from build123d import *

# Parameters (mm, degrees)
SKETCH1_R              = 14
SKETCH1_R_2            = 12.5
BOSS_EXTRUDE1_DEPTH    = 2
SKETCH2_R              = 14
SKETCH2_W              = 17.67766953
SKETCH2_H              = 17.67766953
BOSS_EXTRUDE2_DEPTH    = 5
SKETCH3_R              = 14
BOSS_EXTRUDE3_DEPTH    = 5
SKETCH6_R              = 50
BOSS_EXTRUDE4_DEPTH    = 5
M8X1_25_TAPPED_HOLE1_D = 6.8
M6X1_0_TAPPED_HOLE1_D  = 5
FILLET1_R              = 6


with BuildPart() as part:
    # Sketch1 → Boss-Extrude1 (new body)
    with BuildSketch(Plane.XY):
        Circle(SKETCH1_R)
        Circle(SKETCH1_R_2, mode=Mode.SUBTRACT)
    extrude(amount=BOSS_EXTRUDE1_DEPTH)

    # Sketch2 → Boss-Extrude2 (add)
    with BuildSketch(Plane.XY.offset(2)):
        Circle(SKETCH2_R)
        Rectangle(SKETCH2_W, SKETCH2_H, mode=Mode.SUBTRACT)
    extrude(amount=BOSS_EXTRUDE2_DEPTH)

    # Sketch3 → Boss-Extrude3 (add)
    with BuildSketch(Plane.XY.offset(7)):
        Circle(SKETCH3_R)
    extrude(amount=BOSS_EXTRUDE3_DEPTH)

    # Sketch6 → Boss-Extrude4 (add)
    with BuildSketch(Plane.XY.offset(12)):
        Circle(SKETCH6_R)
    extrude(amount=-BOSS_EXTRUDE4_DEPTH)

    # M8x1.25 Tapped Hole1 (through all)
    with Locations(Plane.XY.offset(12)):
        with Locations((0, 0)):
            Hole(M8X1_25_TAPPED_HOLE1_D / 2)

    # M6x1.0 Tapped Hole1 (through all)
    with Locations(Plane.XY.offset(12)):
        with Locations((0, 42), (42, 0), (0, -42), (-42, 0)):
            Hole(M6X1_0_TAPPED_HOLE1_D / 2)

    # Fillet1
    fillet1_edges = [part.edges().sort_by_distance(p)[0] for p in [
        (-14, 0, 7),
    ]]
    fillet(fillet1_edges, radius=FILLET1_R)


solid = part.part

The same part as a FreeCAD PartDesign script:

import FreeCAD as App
import Part
import Sketcher

V = App.Vector
Q = App.Units.Quantity


def edges_at(feature, points):
    """Names of the edges that pass closest to the given points."""
    edges = feature.Shape.Edges
    near = lambda p: min(range(len(edges)), key=lambda i: edges[i].distToShape(Part.Vertex(*p))[0])
    return sorted({f"Edge{near(p) + 1}" for p in points})

doc = App.newDocument("Part")
params = doc.addObject("Spreadsheet::Sheet", "Params")
for row, (alias, value) in enumerate([
    ("sketch1_diameter", "28 mm"),
    ("sketch1_diameter2", "25 mm"),
    ("pad1_length", "2 mm"),
    ("sketch2_diameter", "28 mm"),
    ("pad2_length", "5 mm"),
    ("sketch3_diameter", "28 mm"),
    ("pad3_length", "5 mm"),
    ("sketch4_diameter", "100 mm"),
    ("pad4_length", "5 mm"),
    ("sketch5_diameter", "6.8 mm"),
    ("hole_diameter", "6.8 mm"),
    ("sketch6_diameter", "5 mm"),
    ("hole2_diameter", "5 mm"),
    ("fillet_radius", "6 mm"),
], start=1):
    params.set(f"A{row}", alias)
    params.set(f"B{row}", "=" + value)
    params.setAlias(f"B{row}", alias)

body = doc.addObject("PartDesign::Body", "Body")

# Sketch on XY plane
sketch1 = body.newObject("Sketcher::SketchObject", "Sketch")
sketch1.AttachmentSupport = (doc.getObject("XY_Plane"), [""])
sketch1.MapMode = "FlatFace"
sketch1.addGeometry(Part.Circle(V(0, 0, 0), V(0, 0, 1), 14), False)
sketch1.addGeometry(Part.Circle(V(0, 0, 0), V(0, 0, 1), 12), False)
sketch1.addConstraint(Sketcher.Constraint("Coincident", 0, 3, -1, 1))
sketch1.addConstraint(Sketcher.Constraint("Coincident", 1, 3, -1, 1))
sketch1.addConstraint(Sketcher.Constraint("Diameter", 0, Q("28 mm")))
sketch1.addConstraint(Sketcher.Constraint("Diameter", 1, Q("25 mm")))
sketch1.setExpression("Constraints[2]", "Params.sketch1_diameter")
sketch1.setExpression("Constraints[3]", "Params.sketch1_diameter2")
pad1 = body.newObject("PartDesign::Pad", "Pad")
pad1.Profile = sketch1
pad1.setExpression("Length", "Params.pad1_length")

# Sketch on XY plane
sketch2 = body.newObject("Sketcher::SketchObject", "Sketch001")
sketch2.AttachmentSupport = (doc.getObject("XY_Plane"), [""])
sketch2.MapMode = "FlatFace"
sketch2.AttachmentOffset = App.Placement(V(0, 0, 2), App.Rotation())
sketch2.addGeometry(Part.Circle(V(0, 0, 0), V(0, 0, 1), 14), False)
sketch2.addGeometry(Part.LineSegment(V(9, -9, 0), V(-9, -9, 0)), False)
sketch2.addGeometry(Part.LineSegment(V(-9, -9, 0), V(-9, 9, 0)), False)
sketch2.addGeometry(Part.LineSegment(V(-9, 9, 0), V(9, 9, 0)), False)
sketch2.addGeometry(Part.LineSegment(V(9, 9, 0), V(9, -9, 0)), False)
sketch2.addConstraint(Sketcher.Constraint("Coincident", 1, 2, 2, 1))
sketch2.addConstraint(Sketcher.Constraint("Coincident", 2, 2, 3, 1))
sketch2.addConstraint(Sketcher.Constraint("Coincident", 3, 2, 4, 1))
sketch2.addConstraint(Sketcher.Constraint("Coincident", 4, 2, 1, 1))
sketch2.addConstraint(Sketcher.Constraint("Horizontal", 1))
sketch2.addConstraint(Sketcher.Constraint("Vertical", 2))
sketch2.addConstraint(Sketcher.Constraint("Horizontal", 3))
sketch2.addConstraint(Sketcher.Constraint("Vertical", 4))
sketch2.addConstraint(Sketcher.Constraint("Coincident", 0, 3, -1, 1))
sketch2.addConstraint(Sketcher.Constraint("Symmetric", 1, 2, 3, 2, -1, 1))
sketch2.addConstraint(Sketcher.Constraint("Equal", 3, 2))
sketch2.addConstraint(Sketcher.Constraint("Diameter", 0, Q("28 mm")))
sketch2.addConstraint(Sketcher.Constraint("DistanceX", 1, 2, 1, 1, Q("17.67767 mm")))
sketch2.setExpression("Constraints[11]", "Params.sketch2_diameter")
pad2 = body.newObject("PartDesign::Pad", "Pad001")
pad2.Profile = sketch2
pad2.setExpression("Length", "Params.pad2_length")

# Sketch on XY plane
sketch3 = body.newObject("Sketcher::SketchObject", "Sketch002")
sketch3.AttachmentSupport = (doc.getObject("XY_Plane"), [""])
sketch3.MapMode = "FlatFace"
sketch3.AttachmentOffset = App.Placement(V(0, 0, 7), App.Rotation())
sketch3.addGeometry(Part.Circle(V(0, 0, 0), V(0, 0, 1), 14), False)
sketch3.addConstraint(Sketcher.Constraint("Coincident", 0, 3, -1, 1))
sketch3.addConstraint(Sketcher.Constraint("Diameter", 0, Q("28 mm")))
sketch3.setExpression("Constraints[1]", "Params.sketch3_diameter")
pad3 = body.newObject("PartDesign::Pad", "Pad002")
pad3.Profile = sketch3
pad3.setExpression("Length", "Params.pad3_length")

# Sketch on XY plane
sketch4 = body.newObject("Sketcher::SketchObject", "Sketch003")
sketch4.AttachmentSupport = (doc.getObject("XY_Plane"), [""])
sketch4.MapMode = "FlatFace"
sketch4.AttachmentOffset = App.Placement(V(0, 0, 12), App.Rotation())
sketch4.addGeometry(Part.Circle(V(0, 0, 0), V(0, 0, 1), 50), False)
sketch4.addConstraint(Sketcher.Constraint("Coincident", 0, 3, -1, 1))
sketch4.addConstraint(Sketcher.Constraint("Diameter", 0, Q("100 mm")))
sketch4.setExpression("Constraints[1]", "Params.sketch4_diameter")
pad4 = body.newObject("PartDesign::Pad", "Pad003")
pad4.Profile = sketch4
pad4.setExpression("Length", "Params.pad4_length")
pad4.Reversed = True

# Sketch on XY plane
sketch5 = body.newObject("Sketcher::SketchObject", "Sketch004")
sketch5.AttachmentSupport = (doc.getObject("XY_Plane"), [""])
sketch5.MapMode = "FlatFace"
sketch5.AttachmentOffset = App.Placement(V(0, 0, 12), App.Rotation())
sketch5.addGeometry(Part.Circle(V(0, 0, 0), V(0, 0, 1), 3.4), False)
sketch5.addConstraint(Sketcher.Constraint("Coincident", 0, 3, -1, 1))
sketch5.addConstraint(Sketcher.Constraint("Diameter", 0, Q("6.8 mm")))
sketch5.setExpression("Constraints[1]", "Params.sketch5_diameter")
doc.recompute()
hole = body.newObject("PartDesign::Hole", "Hole")
hole.Profile = sketch5
hole.ThreadType = "None"
hole.setExpression("Diameter", "Params.hole_diameter")
hole.DepthType = "ThroughAll"

# Sketch on XY plane
sketch6 = body.newObject("Sketcher::SketchObject", "Sketch005")
sketch6.AttachmentSupport = (doc.getObject("XY_Plane"), [""])
sketch6.MapMode = "FlatFace"
sketch6.AttachmentOffset = App.Placement(V(0, 0, 12), App.Rotation())
sketch6.addGeometry(Part.Circle(V(0, 42, 0), V(0, 0, 1), 2.5), False)
sketch6.addGeometry(Part.Circle(V(42, 0, 0), V(0, 0, 1), 2.5), False)
sketch6.addGeometry(Part.Circle(V(0, -42, 0), V(0, 0, 1), 2.5), False)
sketch6.addGeometry(Part.Circle(V(-42, 0, 0), V(0, 0, 1), 2.5), False)
sketch6.addConstraint(Sketcher.Constraint("Equal", 0, 1))
sketch6.addConstraint(Sketcher.Constraint("Equal", 1, 2))
sketch6.addConstraint(Sketcher.Constraint("Equal", 2, 3))
sketch6.addConstraint(Sketcher.Constraint("Symmetric", 0, 3, 2, 3, -1, 1))
sketch6.addConstraint(Sketcher.Constraint("Symmetric", 1, 3, 3, 3, -1, 1))
sketch6.addConstraint(Sketcher.Constraint("PointOnObject", 0, 3, -2))
sketch6.addConstraint(Sketcher.Constraint("PointOnObject", 1, 3, -1))
sketch6.addConstraint(Sketcher.Constraint("Diameter", 0, Q("5 mm")))
sketch6.addConstraint(Sketcher.Constraint("DistanceY", -1, 1, 0, 3, Q("42 mm")))
sketch6.addConstraint(Sketcher.Constraint("DistanceX", -1, 1, 1, 3, Q("42 mm")))
sketch6.setExpression("Constraints[7]", "Params.sketch6_diameter")
doc.recompute()
hole2 = body.newObject("PartDesign::Hole", "Hole001")
hole2.Profile = sketch6
hole2.ThreadType = "None"
hole2.setExpression("Diameter", "Params.hole2_diameter")
hole2.DepthType = "ThroughAll"
doc.recompute()

fillet = body.newObject("PartDesign::Fillet", "Fillet")
fillet.Base = (hole2, edges_at(hole2, [(-14, 0, 7)]))
fillet.setExpression("Radius", "Params.fillet_radius")

doc.recompute()
